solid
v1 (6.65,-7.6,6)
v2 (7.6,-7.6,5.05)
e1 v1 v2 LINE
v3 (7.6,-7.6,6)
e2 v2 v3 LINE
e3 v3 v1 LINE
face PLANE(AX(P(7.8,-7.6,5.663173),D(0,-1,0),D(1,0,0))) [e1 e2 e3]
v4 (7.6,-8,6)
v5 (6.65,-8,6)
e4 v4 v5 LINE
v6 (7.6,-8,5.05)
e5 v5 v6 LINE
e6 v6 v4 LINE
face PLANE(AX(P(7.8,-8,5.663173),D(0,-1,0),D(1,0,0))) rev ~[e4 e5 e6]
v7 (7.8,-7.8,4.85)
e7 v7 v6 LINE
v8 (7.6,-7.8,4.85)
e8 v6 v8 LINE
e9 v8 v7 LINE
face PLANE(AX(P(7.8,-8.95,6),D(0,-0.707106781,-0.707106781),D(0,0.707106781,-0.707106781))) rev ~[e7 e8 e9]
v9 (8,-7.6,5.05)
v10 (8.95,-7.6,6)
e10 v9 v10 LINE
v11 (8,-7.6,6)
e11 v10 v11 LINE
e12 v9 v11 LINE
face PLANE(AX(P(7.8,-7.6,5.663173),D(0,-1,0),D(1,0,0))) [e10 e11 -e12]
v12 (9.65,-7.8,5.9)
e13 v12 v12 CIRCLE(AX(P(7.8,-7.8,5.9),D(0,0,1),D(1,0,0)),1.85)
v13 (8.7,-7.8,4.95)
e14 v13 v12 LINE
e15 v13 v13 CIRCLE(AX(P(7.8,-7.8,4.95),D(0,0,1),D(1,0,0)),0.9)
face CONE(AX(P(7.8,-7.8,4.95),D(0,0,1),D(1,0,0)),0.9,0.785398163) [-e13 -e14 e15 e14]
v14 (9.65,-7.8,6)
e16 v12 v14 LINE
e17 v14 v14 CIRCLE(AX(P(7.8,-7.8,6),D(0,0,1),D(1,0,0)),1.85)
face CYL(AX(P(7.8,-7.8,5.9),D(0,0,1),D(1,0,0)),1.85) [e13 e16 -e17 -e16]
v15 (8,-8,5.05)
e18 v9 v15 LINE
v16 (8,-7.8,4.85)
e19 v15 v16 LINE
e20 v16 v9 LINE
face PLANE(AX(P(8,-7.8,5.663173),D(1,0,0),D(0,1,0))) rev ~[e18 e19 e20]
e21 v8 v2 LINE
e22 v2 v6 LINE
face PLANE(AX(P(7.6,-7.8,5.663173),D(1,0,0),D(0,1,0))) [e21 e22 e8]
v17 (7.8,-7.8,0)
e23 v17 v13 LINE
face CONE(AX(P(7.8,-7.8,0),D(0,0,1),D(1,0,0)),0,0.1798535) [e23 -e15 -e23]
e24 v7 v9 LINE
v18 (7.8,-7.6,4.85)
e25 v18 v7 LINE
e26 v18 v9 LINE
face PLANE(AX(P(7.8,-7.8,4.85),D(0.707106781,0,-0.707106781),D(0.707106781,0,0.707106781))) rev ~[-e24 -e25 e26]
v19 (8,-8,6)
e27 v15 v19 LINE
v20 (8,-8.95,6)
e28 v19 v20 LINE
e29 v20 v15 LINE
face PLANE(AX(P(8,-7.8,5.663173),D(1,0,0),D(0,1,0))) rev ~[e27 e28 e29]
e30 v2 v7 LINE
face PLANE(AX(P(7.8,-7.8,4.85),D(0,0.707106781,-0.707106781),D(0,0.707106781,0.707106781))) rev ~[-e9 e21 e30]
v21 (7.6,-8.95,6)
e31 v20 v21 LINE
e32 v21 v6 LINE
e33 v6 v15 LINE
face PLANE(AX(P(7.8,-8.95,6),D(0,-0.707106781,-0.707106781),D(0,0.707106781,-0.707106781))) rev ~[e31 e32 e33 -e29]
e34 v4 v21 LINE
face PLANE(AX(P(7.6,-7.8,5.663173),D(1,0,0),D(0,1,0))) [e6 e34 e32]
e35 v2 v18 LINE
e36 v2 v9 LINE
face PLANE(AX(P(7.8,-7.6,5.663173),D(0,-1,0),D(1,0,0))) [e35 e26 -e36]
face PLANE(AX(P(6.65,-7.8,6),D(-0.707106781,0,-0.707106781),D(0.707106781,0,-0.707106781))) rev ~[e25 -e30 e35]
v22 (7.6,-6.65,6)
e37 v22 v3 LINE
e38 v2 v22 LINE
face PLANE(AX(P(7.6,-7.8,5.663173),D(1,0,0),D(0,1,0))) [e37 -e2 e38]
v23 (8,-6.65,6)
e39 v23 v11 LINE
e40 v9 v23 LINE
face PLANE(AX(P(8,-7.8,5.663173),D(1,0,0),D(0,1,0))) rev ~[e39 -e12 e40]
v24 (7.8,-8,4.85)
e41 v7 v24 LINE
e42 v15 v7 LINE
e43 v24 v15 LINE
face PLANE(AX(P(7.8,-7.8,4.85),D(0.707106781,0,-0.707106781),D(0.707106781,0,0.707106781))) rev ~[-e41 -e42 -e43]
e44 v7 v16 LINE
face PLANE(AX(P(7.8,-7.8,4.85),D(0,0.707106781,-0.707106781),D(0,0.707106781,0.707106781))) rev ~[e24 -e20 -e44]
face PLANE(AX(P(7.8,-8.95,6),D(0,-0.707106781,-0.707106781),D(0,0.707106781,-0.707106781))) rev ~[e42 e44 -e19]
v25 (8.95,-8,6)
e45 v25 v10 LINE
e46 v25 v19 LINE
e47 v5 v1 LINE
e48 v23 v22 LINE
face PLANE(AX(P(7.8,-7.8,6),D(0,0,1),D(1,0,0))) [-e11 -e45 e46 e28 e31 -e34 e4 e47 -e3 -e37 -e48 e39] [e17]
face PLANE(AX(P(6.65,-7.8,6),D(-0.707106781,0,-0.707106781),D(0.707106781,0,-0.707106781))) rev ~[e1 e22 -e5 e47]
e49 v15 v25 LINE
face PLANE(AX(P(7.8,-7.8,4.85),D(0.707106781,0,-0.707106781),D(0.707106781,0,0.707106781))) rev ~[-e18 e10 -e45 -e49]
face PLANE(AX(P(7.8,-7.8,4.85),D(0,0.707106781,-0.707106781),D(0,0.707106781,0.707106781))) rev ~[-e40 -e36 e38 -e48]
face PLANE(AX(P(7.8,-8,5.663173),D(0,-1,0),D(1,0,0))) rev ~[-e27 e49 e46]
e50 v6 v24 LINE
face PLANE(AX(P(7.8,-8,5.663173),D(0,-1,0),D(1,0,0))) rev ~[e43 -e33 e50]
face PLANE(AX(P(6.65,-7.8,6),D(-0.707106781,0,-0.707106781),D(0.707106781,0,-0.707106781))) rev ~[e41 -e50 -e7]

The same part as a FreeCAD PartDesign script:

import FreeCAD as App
import Part
import Sketcher
from FreeCAD import Vector
Q = App.Units.Quantity


def add_polygon(sketch, points):
    """Adds a closed chain of lines whose ends are joined by coincident constraints."""
    first, n = sketch.GeometryCount, len(points)
    for a, b in zip(points, points[1:] + points[:1]):
        sketch.addGeometry(Part.LineSegment(App.Vector(*a, 0), App.Vector(*b, 0)), False)
    for i in range(n):
        sketch.addConstraint(Sketcher.Constraint("Coincident", first + i, 2, first + (i + 1) % n, 1))

doc = App.newDocument("Part")
body = doc.addObject("PartDesign::Body", "Body")

# Sketch on XZ plane
sketch1 = body.newObject("Sketcher::SketchObject", "Sketch")
sketch1.AttachmentSupport = (doc.getObject("XZ_Plane"), [""])
sketch1.MapMode = "FlatFace"
add_polygon(sketch1, [(0, 0), (0, -6), (0.9, -1.05), (1.85, -0.1), (1.85, 0)])  # lines 0-4
sketch1.addConstraint([
    Sketcher.Constraint("Vertical", 0),
    Sketcher.Constraint("Vertical", 3),
    Sketcher.Constraint("Horizontal", 4),
    Sketcher.Constraint("Coincident", 4, 2, -1, 1),
    Sketcher.Constraint("DistanceY", 0, 2, 0, 1, 6.0),
    Sketcher.Constraint("Angle", 2, Q("45 deg")),
    Sketcher.Constraint("DistanceY", 3, 1, 3, 2, 0.1),
    Sketcher.Constraint("DistanceX", 4, 2, 4, 1, 1.85),
    Sketcher.Constraint("DistanceX", -1, 1, 1, 2, 0.9),
])
revolution = body.newObject("PartDesign::Revolution", "Revolution")
revolution.Profile = sketch1
revolution.ReferenceAxis = (sketch1, ["V_Axis"])
revolution.Angle = 360

# Sketch on XZ plane
sketch2 = body.newObject("Sketcher::SketchObject", "Sketch001")
sketch2.AttachmentSupport = (doc.getObject("XZ_Plane"), [""])
sketch2.MapMode = "FlatFace"
add_polygon(sketch2, [(-1.15, 0), (0, -1.15), (1.15, 0)])  # lines 0-2
sketch2.addConstraint([
    Sketcher.Constraint("Horizontal", 2),
    Sketcher.Constraint("Symmetric", 1, 2, 2, 2, -1, 1),
    Sketcher.Constraint("PointOnObject", 0, 2, -2),
    Sketcher.Constraint("Perpendicular", 0, 1),
    Sketcher.Constraint("DistanceX", 2, 2, 2, 1, 2.3),
])
pocket1 = body.newObject("PartDesign::Pocket", "Pocket")
pocket1.Profile = sketch2
pocket1.Length = 0.4
pocket1.Midplane = True
doc.recompute()

polarpattern = body.newObject("PartDesign::PolarPattern", "PolarPattern")
polarpattern.Originals = [pocket1]
polarpattern.Axis = (doc.getObject("Z_Axis"), [""])
polarpattern.Angle = 90
polarpattern.Occurrences = 2
body.Tip = polarpattern
body2 = doc.addObject("PartDesign::Body", "Body001")
doc.recompute()

body.Placement = App.Placement(Vector(7.8, -7.8, 6), App.Rotation(Vector(0, 0, 1), 0))
boolean = body2.newObject("PartDesign::Boolean", "Boolean")
boolean.Type = "Fuse"
boolean.addObjects([body])

doc.recompute()
